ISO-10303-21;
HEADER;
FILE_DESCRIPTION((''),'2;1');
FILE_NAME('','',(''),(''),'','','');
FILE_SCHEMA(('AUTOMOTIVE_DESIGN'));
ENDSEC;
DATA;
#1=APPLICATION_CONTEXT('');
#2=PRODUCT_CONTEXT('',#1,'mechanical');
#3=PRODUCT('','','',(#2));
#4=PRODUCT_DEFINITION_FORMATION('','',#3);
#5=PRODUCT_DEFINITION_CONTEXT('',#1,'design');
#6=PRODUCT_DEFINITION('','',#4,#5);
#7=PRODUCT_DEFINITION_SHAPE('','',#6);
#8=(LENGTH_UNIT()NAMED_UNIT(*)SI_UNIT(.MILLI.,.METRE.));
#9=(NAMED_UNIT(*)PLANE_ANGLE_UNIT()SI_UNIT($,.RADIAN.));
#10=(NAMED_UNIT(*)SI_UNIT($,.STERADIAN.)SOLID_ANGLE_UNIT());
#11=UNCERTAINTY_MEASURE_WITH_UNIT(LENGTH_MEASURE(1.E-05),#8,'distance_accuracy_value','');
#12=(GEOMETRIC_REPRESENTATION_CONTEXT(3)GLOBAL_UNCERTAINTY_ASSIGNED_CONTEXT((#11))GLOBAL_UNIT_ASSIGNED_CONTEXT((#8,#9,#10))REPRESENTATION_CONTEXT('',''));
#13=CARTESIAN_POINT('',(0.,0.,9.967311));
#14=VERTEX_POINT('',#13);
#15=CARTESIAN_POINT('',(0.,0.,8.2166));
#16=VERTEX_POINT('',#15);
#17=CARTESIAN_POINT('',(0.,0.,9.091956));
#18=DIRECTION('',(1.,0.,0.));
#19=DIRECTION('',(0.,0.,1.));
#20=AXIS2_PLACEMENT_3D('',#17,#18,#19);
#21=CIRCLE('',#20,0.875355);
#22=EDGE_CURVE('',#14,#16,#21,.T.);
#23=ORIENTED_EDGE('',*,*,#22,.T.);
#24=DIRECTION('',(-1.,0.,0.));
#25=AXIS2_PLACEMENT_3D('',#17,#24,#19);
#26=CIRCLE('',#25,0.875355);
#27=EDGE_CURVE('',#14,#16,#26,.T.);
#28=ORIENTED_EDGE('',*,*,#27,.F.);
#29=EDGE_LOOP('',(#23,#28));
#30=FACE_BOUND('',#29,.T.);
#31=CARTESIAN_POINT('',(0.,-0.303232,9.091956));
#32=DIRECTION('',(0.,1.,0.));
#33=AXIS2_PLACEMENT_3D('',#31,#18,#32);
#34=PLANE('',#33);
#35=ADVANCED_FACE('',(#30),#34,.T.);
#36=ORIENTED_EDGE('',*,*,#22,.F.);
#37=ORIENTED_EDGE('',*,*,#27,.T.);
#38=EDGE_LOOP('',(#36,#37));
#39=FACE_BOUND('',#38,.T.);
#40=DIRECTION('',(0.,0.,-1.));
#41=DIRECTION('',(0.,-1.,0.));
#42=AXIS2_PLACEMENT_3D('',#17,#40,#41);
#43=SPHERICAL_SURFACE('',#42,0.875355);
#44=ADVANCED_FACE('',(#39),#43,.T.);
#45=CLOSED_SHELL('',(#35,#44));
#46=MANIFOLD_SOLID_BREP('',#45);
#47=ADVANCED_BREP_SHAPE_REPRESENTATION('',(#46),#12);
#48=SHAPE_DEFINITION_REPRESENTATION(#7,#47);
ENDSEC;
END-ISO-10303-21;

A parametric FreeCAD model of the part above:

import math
import FreeCAD as App
import Part
import Sketcher

V = App.Vector
Q = App.Units.Quantity

doc = App.newDocument("Part")
body = doc.addObject("PartDesign::Body", "Body")

# Sketch on YZ plane
sketch1 = body.newObject("Sketcher::SketchObject", "Sketch")
sketch1.AttachmentSupport = (doc.getObject("YZ_Plane"), [""])
sketch1.MapMode = "FlatFace"
sketch1.addGeometry([
    Part.LineSegment(V(0, 8.2166, 0), V(0, 9.967311, 0)),
    Part.ArcOfCircle(Part.Circle(V(0, 9.091956, 0), V(0, 0, 1), 0.875355), math.radians(90), math.radians(270)),
], False)
sketch1.addConstraint([
    Sketcher.Constraint("Coincident", 0, 1, 1, 2),
    Sketcher.Constraint("Coincident", 1, 1, 0, 2),
    Sketcher.Constraint("Vertical", 0),
    Sketcher.Constraint("PointOnObject", 1, 3, -2),
    Sketcher.Constraint("PointOnObject", 0, 1, -2),
    Sketcher.Constraint("Radius", 1, Q("0.875355 mm")),
    Sketcher.Constraint("DistanceY", -1, 1, 0, 1, Q("8.2166 mm")),
])
revolution = body.newObject("PartDesign::Revolution", "Revolution")
revolution.Profile = sketch1
revolution.ReferenceAxis = (sketch1, ["V_Axis"])
revolution.Angle = 180
revolution.Reversed = True

doc.recompute()
